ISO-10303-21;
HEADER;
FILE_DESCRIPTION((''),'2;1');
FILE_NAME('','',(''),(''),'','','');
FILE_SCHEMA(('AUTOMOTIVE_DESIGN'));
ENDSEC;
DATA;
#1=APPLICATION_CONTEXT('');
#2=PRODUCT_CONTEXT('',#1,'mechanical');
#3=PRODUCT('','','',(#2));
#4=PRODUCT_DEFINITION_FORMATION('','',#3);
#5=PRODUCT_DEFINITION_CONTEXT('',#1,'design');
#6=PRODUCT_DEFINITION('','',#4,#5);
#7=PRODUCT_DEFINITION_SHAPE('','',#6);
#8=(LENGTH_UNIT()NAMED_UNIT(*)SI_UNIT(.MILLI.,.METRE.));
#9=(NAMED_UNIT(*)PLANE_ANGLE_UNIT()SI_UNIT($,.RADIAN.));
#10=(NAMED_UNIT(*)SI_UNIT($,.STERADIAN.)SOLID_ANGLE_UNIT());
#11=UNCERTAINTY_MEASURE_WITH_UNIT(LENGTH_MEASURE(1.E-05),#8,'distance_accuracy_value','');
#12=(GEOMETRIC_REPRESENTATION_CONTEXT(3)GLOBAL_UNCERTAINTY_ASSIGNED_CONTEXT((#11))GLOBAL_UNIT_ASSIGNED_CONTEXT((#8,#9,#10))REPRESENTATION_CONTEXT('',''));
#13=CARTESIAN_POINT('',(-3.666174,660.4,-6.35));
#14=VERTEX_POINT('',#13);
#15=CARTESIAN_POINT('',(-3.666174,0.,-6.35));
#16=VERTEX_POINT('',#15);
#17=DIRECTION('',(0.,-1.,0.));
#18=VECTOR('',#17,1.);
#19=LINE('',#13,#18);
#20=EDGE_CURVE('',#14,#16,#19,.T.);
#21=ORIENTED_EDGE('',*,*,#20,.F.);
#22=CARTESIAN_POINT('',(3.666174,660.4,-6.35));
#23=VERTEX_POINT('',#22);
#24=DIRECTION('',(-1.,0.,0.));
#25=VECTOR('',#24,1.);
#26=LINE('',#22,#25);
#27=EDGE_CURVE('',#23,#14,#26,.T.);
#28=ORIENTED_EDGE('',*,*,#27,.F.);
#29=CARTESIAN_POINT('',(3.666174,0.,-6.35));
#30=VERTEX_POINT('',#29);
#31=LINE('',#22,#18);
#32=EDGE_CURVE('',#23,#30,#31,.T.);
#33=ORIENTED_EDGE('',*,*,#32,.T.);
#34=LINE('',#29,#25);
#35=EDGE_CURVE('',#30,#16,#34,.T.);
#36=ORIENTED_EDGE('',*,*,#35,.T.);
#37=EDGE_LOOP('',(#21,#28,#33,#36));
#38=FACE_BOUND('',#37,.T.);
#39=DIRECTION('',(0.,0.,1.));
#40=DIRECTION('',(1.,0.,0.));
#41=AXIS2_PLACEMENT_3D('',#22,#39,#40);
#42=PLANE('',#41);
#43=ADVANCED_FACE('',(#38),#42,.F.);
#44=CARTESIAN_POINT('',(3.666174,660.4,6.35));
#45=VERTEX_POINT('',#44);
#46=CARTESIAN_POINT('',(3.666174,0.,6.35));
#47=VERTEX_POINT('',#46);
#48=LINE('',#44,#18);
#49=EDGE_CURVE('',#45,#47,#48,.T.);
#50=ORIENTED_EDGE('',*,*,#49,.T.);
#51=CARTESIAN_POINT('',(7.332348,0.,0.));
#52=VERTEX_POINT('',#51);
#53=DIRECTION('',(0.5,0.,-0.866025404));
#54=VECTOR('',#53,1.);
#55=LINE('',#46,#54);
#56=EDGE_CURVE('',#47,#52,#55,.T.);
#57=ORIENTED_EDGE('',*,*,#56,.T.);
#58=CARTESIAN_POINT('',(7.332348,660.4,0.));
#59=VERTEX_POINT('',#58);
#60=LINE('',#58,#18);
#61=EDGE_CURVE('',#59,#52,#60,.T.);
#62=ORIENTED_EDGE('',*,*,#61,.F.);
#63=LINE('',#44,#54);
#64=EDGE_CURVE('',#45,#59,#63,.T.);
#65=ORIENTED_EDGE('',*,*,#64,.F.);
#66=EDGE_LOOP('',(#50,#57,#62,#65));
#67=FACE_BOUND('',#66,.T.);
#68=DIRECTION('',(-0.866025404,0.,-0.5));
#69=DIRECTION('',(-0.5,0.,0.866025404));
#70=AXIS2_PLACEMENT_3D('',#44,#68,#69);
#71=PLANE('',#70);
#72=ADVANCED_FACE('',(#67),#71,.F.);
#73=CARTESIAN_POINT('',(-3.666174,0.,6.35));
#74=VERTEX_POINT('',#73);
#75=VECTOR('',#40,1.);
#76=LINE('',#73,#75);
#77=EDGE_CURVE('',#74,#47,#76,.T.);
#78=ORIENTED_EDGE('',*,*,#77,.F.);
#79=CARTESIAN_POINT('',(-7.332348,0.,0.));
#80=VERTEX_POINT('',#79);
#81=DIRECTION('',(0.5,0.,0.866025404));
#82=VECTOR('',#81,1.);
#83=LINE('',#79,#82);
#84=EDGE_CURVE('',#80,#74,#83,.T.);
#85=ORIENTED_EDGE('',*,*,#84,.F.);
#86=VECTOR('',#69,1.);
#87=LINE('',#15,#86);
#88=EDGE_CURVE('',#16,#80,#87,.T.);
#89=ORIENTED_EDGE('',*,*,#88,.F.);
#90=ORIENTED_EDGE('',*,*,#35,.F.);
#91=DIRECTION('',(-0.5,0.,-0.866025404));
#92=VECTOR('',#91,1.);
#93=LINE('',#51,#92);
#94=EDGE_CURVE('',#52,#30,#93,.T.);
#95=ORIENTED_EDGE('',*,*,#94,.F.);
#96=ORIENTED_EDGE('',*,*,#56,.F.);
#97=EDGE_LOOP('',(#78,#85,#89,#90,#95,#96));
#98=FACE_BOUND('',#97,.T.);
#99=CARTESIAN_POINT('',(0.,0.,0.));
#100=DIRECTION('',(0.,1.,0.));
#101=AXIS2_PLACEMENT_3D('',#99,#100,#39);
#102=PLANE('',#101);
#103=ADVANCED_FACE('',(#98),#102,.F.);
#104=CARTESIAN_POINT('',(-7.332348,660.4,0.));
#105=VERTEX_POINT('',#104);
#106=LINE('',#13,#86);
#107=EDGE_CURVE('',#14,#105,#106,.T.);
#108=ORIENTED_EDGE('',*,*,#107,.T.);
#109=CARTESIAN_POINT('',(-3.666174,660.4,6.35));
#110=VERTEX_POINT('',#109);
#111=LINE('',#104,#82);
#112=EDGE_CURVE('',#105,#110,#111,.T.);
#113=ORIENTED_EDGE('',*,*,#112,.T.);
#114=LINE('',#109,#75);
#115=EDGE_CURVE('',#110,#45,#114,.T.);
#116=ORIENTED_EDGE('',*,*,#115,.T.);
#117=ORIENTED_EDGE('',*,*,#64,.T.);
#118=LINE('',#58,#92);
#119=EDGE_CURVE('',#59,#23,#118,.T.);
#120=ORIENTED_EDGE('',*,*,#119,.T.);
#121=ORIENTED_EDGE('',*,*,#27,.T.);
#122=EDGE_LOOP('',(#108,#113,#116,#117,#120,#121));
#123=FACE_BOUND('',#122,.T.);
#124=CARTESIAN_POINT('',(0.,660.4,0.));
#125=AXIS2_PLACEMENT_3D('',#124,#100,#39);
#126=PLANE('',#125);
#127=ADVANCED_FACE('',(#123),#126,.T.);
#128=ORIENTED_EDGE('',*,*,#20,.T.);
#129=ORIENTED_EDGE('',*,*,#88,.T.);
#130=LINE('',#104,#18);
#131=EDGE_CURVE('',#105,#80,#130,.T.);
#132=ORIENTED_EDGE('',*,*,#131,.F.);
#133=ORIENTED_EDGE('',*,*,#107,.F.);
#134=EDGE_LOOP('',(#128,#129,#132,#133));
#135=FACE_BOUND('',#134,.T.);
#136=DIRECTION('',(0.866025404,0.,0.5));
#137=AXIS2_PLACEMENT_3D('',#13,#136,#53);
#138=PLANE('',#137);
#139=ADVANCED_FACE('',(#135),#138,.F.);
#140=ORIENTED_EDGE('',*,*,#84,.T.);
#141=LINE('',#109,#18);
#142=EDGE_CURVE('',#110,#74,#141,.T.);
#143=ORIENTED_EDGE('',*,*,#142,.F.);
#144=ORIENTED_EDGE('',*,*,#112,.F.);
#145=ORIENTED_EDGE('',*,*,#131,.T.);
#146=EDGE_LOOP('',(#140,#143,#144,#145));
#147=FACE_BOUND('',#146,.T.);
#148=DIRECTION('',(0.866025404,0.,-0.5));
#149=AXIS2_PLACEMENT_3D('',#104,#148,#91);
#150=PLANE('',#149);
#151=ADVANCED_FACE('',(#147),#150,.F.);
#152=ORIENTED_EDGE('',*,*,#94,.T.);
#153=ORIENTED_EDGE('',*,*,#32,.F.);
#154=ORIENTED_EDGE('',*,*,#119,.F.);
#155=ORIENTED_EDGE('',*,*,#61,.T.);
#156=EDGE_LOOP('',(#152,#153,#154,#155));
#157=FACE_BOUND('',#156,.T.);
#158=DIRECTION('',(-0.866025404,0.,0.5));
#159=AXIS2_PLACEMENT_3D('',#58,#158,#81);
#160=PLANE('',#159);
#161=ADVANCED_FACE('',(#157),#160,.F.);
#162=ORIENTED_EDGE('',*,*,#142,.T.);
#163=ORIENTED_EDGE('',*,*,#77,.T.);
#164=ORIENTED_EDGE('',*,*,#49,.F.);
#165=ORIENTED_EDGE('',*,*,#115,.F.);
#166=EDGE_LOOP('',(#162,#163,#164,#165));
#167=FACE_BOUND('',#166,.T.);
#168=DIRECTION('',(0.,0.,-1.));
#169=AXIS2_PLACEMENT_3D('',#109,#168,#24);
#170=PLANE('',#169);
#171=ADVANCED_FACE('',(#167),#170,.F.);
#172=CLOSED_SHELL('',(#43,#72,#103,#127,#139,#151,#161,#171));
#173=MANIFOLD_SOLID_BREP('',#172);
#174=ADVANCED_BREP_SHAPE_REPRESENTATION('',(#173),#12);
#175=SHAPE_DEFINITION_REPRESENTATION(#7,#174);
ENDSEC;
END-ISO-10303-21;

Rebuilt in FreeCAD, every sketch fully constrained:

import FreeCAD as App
import Part
import Sketcher
from FreeCAD import Vector
Q = App.Units.Quantity

doc = App.newDocument("Part")
params = doc.addObject("Spreadsheet::Sheet", "Params")
for row, (alias, value) in enumerate([
    ("pad1_length", "26 in"),
], start=1):
    params.set(f"A{row}", alias)
    params.set(f"B{row}", "=" + value)
    params.setAlias(f"B{row}", alias)

body = doc.addObject("PartDesign::Body", "Body")

sketch1 = doc.addObject("Sketcher::SketchObject", "Sketch")
body.addObject(sketch1)
sketch1.AttachmentSupport = (doc.XZ_Plane, [""])
sketch1.MapMode = "FlatFace"
sketch1.addGeometry(Part.LineSegment(Vector(3.666174, 6.35, 0), Vector(7.332348, 0, 0)), False)
sketch1.addGeometry(Part.LineSegment(Vector(7.332348, 0, 0), Vector(3.666174, -6.35, 0)), False)
sketch1.addGeometry(Part.LineSegment(Vector(3.666174, -6.35, 0), Vector(-3.666174, -6.35, 0)), False)
sketch1.addGeometry(Part.LineSegment(Vector(-3.666174, -6.35, 0), Vector(-7.332348, 0, 0)), False)
sketch1.addGeometry(Part.LineSegment(Vector(-7.332348, 0, 0), Vector(-3.666174, 6.35, 0)), False)
sketch1.addGeometry(Part.LineSegment(Vector(-3.666174, 6.35, 0), Vector(3.666174, 6.35, 0)), False)
sketch1.addConstraint(Sketcher.Constraint("Coincident", 0, 2, 1, 1))
sketch1.addConstraint(Sketcher.Constraint("Coincident", 1, 2, 2, 1))
sketch1.addConstraint(Sketcher.Constraint("Coincident", 2, 2, 3, 1))
sketch1.addConstraint(Sketcher.Constraint("Coincident", 3, 2, 4, 1))
sketch1.addConstraint(Sketcher.Constraint("Coincident", 4, 2, 5, 1))
sketch1.addConstraint(Sketcher.Constraint("Coincident", 5, 2, 0, 1))
sketch1.addConstraint(Sketcher.Constraint("Horizontal", 2))
sketch1.addConstraint(Sketcher.Constraint("Horizontal", 5))
sketch1.addConstraint(Sketcher.Constraint("Symmetric", 0, 2, 3, 2, -1, 1))
sketch1.addConstraint(Sketcher.Constraint("Symmetric", 1, 2, 4, 2, -1, 1))
sketch1.addConstraint(Sketcher.Constraint("PointOnObject", 0, 2, -1))
sketch1.addConstraint(Sketcher.Constraint("Parallel", 0, 3))
sketch1.addConstraint(Sketcher.Constraint("Vertical", 2, 2, 4, 2))
sketch1.addConstraint(Sketcher.Constraint("Angle", 0, Q("-60 deg")))
sketch1.addConstraint(Sketcher.Constraint("DistanceY", 2, 2, 4, 2, Q("0.5 in")))
sketch1.addConstraint(Sketcher.Constraint("DistanceX", 2, 2, 2, 1, 7.332348))
pad1 = doc.addObject("PartDesign::Pad", "Pad")
body.addObject(pad1)
pad1.Profile = sketch1
pad1.setExpression("Length", "Params.pad1_length")
pad1.Reversed = True

doc.recompute()
